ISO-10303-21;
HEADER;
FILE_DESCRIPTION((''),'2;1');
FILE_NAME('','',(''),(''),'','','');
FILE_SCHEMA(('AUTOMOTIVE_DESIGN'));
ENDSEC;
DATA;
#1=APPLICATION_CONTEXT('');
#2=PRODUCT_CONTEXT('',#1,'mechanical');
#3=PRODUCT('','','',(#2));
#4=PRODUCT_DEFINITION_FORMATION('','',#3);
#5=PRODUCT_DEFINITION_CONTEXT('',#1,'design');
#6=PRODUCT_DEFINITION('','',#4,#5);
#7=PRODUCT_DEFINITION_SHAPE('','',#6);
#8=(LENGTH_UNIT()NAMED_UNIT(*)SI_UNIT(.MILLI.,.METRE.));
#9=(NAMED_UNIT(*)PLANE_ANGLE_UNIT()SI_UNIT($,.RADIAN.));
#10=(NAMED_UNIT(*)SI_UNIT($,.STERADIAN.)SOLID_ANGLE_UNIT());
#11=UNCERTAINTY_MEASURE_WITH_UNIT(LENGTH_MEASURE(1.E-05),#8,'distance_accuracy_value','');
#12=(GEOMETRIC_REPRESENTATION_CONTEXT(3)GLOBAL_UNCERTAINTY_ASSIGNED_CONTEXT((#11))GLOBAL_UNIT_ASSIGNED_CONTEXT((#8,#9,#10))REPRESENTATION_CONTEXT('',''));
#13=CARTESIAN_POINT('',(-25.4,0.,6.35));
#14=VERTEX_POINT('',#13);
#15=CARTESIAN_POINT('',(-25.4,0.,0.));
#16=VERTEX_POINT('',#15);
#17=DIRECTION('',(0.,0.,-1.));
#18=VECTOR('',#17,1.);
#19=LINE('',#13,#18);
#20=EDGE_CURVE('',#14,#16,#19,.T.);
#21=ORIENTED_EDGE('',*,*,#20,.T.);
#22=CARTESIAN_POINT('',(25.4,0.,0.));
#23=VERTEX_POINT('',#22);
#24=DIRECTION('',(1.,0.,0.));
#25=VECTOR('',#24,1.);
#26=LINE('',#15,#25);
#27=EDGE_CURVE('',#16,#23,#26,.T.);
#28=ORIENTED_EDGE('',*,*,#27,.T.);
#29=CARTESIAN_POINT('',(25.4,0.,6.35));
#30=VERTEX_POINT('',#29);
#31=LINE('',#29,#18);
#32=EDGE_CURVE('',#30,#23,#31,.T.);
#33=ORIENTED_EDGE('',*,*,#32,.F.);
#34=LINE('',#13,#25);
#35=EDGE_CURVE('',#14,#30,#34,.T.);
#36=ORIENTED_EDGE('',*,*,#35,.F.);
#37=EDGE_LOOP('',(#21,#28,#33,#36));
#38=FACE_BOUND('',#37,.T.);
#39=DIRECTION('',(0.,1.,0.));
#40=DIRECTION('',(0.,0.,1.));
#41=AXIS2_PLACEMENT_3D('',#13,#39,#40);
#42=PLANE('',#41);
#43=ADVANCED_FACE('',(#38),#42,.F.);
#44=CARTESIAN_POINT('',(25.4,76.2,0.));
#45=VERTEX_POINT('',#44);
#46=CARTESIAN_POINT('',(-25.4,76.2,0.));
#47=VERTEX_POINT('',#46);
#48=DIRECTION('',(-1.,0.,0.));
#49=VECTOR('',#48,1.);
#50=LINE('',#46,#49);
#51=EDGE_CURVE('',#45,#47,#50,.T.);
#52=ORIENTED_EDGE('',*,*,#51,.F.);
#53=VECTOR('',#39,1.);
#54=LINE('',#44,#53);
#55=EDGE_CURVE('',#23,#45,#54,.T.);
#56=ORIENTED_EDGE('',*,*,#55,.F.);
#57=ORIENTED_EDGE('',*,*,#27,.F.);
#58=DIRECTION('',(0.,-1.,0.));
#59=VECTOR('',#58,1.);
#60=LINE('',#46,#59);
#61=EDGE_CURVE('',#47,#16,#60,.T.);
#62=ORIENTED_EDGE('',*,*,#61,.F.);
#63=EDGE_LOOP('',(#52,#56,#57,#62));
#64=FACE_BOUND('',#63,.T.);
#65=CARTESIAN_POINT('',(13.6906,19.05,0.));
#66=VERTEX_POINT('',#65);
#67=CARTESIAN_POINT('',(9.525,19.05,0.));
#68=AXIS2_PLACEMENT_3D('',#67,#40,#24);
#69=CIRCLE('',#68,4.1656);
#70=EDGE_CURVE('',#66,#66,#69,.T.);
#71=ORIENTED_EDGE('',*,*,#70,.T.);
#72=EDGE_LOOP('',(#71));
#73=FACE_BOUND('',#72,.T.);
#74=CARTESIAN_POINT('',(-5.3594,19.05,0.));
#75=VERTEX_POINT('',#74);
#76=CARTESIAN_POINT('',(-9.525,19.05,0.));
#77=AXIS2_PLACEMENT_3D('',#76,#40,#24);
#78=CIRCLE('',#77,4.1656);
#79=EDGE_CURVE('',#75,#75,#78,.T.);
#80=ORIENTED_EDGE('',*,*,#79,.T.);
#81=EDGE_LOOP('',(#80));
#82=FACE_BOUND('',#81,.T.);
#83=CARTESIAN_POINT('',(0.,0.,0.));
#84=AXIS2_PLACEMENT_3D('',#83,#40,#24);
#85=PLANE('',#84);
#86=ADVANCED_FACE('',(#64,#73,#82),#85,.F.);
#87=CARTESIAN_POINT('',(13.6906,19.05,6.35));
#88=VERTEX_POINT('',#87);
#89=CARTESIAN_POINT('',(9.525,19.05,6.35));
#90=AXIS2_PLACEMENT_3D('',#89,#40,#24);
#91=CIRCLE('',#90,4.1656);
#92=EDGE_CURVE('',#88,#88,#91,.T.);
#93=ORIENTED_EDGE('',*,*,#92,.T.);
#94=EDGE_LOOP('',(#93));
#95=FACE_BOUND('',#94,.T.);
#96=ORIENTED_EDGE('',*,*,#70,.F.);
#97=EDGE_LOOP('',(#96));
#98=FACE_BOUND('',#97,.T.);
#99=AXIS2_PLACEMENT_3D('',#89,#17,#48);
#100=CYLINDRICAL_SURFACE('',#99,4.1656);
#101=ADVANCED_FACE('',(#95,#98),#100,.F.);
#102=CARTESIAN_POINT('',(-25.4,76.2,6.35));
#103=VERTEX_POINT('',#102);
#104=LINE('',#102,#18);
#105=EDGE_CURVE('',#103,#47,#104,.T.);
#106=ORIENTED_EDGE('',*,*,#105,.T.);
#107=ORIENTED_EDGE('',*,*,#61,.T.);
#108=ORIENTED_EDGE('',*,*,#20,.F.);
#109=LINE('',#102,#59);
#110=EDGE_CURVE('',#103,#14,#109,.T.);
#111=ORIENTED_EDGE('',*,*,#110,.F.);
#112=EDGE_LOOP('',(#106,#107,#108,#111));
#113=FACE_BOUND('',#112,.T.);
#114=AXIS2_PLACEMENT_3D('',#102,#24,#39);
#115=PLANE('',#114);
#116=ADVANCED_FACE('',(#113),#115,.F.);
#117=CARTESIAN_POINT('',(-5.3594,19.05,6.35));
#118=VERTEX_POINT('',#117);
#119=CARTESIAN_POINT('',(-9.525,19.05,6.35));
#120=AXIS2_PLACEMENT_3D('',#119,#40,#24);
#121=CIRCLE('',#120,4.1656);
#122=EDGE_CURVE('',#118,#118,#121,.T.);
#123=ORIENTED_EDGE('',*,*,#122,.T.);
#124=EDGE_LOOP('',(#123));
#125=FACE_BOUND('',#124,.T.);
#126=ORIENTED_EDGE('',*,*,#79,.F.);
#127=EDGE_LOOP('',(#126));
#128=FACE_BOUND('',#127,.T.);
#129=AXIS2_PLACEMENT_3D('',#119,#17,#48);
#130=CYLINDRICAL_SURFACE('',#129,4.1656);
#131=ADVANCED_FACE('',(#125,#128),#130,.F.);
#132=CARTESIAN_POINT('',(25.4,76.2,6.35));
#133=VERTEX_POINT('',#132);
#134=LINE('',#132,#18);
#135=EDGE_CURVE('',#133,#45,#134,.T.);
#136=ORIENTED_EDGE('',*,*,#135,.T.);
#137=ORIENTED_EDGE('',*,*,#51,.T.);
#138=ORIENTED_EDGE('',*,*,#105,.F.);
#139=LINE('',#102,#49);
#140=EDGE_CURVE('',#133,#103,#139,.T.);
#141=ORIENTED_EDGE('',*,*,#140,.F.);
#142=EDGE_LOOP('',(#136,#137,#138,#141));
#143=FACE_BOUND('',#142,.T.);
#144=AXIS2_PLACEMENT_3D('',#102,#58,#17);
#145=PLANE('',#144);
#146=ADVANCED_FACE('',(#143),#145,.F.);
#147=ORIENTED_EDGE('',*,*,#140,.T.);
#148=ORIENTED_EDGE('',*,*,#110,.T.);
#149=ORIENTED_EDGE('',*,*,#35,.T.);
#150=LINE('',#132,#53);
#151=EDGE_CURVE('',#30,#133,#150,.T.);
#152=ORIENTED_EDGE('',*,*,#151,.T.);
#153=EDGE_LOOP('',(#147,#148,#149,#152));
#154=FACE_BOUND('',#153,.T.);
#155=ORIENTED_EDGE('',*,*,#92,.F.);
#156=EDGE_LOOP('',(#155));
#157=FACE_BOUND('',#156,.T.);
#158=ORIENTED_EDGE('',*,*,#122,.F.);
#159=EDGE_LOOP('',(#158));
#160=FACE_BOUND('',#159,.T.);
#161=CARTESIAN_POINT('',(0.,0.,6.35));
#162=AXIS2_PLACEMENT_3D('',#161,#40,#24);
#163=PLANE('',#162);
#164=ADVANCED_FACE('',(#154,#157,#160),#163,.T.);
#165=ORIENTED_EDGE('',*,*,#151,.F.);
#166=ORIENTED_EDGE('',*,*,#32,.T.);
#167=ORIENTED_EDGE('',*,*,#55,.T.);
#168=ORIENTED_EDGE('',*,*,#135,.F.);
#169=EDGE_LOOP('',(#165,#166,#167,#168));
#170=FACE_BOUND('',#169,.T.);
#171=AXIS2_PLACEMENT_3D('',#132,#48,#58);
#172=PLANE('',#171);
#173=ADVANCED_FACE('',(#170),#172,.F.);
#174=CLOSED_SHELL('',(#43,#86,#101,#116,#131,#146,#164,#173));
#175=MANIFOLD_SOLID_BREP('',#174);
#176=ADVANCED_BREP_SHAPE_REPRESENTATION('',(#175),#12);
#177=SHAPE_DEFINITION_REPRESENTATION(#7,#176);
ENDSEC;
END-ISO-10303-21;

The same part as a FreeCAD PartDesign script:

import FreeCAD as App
import Part
import Sketcher
Q = App.Units.Quantity


def add_polygon(sketch, points):
    """Adds a closed chain of lines whose ends are joined by coincident constraints."""
    first, n = sketch.GeometryCount, len(points)
    for a, b in zip(points, points[1:] + points[:1]):
        sketch.addGeometry(Part.LineSegment(App.Vector(*a, 0), App.Vector(*b, 0)), False)
    for i in range(n):
        sketch.addConstraint(Sketcher.Constraint("Coincident", first + i, 2, first + (i + 1) % n, 1))

doc = App.newDocument("Part")
body = doc.addObject("PartDesign::Body", "Body")

# Sketch on XY plane
sketch1 = body.newObject("Sketcher::SketchObject", "Sketch")
sketch1.AttachmentSupport = (doc.getObject("XY_Plane"), [""])
sketch1.MapMode = "FlatFace"
add_polygon(sketch1, [(-25.4, 76.2), (-25.4, 0), (25.4, 0), (25.4, 76.2)])  # lines 0-3
sketch1.addGeometry(Part.Circle(App.Vector(-9.5, 19.1, 0), App.Vector(0, 0, 1), 4.2), False)  # 4
sketch1.addGeometry(Part.Circle(App.Vector(9.5, 19.1, 0), App.Vector(0, 0, 1), 4.2), False)  # 5
sketch1.addConstraint([
    Sketcher.Constraint("Vertical", 0),
    Sketcher.Constraint("Horizontal", 1),
    Sketcher.Constraint("Vertical", 2),
    Sketcher.Constraint("Horizontal", 3),
    Sketcher.Constraint("Equal", 4, 5),
    Sketcher.Constraint("Symmetric", 0, 2, 1, 2, -1, 1),
    Sketcher.Constraint("Symmetric", 4, 3, 5, 3, -2),
    Sketcher.Constraint("DistanceX", 1, 1, 1, 2, Q("2 in")),
    Sketcher.Constraint("DistanceY", 0, 2, 0, 1, Q("3 in")),
    Sketcher.Constraint("Diameter", 4, Q("0.328 in")),
    Sketcher.Constraint("DistanceY", -1, 1, 4, 3, Q("0.75 in")),
    Sketcher.Constraint("DistanceX", 4, 3, 5, 3, Q("0.75 in")),
])
pad1 = body.newObject("PartDesign::Pad", "Pad")
pad1.Profile = sketch1
pad1.Length = Q("0.25 in")

doc.recompute()
